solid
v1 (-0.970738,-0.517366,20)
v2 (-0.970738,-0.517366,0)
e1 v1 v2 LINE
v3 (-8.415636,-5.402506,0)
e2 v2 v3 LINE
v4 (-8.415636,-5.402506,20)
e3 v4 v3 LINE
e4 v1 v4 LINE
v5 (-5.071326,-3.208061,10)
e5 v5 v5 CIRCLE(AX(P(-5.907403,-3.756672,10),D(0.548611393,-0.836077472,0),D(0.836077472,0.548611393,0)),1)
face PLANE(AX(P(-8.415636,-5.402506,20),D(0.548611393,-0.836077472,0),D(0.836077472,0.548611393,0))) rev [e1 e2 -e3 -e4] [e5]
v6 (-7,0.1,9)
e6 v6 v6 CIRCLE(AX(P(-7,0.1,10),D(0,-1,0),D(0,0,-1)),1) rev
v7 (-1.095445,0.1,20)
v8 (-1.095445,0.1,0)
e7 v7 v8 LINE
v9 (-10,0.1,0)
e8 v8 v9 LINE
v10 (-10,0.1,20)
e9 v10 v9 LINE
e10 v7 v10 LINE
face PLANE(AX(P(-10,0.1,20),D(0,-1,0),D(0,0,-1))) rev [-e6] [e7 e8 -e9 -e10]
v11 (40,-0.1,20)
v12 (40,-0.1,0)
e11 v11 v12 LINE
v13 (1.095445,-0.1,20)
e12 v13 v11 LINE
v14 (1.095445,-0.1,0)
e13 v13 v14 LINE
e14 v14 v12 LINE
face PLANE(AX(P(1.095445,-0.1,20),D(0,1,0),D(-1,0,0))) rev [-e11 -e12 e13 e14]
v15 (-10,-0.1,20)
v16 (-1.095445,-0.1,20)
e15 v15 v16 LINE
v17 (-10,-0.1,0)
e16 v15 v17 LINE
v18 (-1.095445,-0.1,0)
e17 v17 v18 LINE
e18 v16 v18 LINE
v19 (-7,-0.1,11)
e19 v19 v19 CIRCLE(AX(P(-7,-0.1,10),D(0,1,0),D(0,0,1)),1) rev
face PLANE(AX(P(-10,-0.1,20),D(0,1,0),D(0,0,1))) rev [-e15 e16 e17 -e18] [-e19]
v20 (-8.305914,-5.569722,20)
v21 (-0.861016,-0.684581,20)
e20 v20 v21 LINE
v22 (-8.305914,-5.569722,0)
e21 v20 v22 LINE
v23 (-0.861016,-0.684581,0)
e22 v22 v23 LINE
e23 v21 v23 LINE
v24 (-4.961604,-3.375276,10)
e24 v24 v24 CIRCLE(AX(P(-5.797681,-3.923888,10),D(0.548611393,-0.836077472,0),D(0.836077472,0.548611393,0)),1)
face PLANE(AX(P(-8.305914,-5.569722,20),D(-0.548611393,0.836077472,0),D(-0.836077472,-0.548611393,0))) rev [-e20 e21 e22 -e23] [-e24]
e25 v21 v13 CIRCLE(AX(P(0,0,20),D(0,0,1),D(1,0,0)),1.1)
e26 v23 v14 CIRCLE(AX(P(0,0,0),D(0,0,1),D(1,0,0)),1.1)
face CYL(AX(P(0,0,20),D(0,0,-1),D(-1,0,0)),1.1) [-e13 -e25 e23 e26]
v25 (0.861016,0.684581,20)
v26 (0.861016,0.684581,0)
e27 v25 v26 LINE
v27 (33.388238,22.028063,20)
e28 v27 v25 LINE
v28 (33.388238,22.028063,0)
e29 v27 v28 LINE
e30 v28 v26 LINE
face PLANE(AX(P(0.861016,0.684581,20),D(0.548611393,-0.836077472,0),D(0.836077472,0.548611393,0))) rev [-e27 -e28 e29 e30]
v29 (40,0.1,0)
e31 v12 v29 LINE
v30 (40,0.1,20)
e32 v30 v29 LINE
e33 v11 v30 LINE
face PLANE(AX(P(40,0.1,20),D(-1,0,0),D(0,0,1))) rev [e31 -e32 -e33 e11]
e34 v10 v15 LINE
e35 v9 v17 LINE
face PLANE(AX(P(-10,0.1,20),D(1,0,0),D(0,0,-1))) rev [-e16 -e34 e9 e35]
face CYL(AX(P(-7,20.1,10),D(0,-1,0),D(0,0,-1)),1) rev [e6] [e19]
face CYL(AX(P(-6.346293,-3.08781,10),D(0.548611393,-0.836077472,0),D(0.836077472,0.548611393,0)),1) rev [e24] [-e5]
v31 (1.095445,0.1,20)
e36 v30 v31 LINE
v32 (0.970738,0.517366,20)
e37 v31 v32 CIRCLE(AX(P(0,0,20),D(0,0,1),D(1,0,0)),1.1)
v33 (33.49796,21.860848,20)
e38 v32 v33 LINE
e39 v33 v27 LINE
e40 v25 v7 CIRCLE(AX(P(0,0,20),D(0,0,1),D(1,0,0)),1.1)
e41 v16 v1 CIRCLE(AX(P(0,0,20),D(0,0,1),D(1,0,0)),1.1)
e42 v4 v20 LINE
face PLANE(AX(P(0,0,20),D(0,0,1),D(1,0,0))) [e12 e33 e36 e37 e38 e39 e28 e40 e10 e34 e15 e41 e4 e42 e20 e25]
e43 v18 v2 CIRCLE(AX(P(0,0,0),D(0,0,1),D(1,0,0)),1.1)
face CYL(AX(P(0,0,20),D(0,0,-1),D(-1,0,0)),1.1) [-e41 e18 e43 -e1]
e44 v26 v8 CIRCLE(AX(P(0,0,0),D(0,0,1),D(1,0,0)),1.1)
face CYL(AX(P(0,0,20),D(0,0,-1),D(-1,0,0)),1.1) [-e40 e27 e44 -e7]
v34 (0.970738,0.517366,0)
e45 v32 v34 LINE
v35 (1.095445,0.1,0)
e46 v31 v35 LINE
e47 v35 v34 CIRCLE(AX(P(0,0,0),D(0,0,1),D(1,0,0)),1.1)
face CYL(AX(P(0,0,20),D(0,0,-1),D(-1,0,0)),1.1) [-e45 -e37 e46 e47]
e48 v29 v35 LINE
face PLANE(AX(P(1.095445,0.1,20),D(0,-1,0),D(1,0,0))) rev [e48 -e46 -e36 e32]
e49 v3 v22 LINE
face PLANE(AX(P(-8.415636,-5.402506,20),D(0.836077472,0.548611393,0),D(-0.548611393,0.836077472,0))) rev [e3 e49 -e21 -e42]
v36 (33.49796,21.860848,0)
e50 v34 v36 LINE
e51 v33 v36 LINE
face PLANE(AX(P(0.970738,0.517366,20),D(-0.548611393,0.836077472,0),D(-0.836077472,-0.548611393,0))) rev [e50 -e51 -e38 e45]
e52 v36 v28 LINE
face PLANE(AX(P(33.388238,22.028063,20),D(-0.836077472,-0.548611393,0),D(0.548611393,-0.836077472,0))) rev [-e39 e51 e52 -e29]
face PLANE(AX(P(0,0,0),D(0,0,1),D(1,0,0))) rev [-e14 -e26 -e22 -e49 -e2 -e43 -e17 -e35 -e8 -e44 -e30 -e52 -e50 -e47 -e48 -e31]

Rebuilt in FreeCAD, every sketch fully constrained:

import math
import FreeCAD as App
import Part
import Sketcher
from FreeCAD import Vector
Q = App.Units.Quantity

doc = App.newDocument("Part")
body = doc.addObject("PartDesign::Body", "Body")

# Sketch on XY plane
sketch1 = body.newObject("Sketcher::SketchObject", "Sketch")
sketch1.AttachmentSupport = (doc.getObject("XY_Plane"), [""])
sketch1.MapMode = "FlatFace"
sketch1.addGeometry([
    Part.LineSegment(Vector(40, 0.1, 0), Vector(1.1, 0.1, 0)),  # 0
    Part.ArcOfCircle(Part.Circle(Vector(0, 0, 0), Vector(0, 0, 1), 1.1), math.radians(5), math.radians(28)),  # 1
    Part.LineSegment(Vector(0.97, 0.52, 0), Vector(33.5, 21.86, 0)),  # 2
    Part.LineSegment(Vector(33.5, 21.86, 0), Vector(33.39, 22.03, 0)),  # 3
    Part.LineSegment(Vector(33.39, 22.03, 0), Vector(0.86, 0.68, 0)),  # 4
    Part.ArcOfCircle(Part.Circle(Vector(0, 0, 0), Vector(0, 0, 1), 1.1), math.radians(38), math.radians(175)),  # 5
    Part.LineSegment(Vector(-1.1, 0.1, 0), Vector(-10, 0.1, 0)),  # 6
    Part.LineSegment(Vector(-10, 0.1, 0), Vector(-10, -0.1, 0)),  # 7
    Part.LineSegment(Vector(-10, -0.1, 0), Vector(-1.1, -0.1, 0)),  # 8
    Part.ArcOfCircle(Part.Circle(Vector(0, 0, 0), Vector(0, 0, 1), 1.1), math.radians(-175), math.radians(-152)),  # 9
    Part.LineSegment(Vector(-0.97, -0.52, 0), Vector(-8.42, -5.4, 0)),  # 10
    Part.LineSegment(Vector(-8.42, -5.4, 0), Vector(-8.31, -5.57, 0)),  # 11
    Part.LineSegment(Vector(-8.31, -5.57, 0), Vector(-0.86, -0.68, 0)),  # 12
    Part.ArcOfCircle(Part.Circle(Vector(0, 0, 0), Vector(0, 0, 1), 1.1), math.radians(-142), math.radians(-5)),  # 13
    Part.LineSegment(Vector(1.1, -0.1, 0), Vector(40, -0.1, 0)),  # 14
    Part.LineSegment(Vector(40, -0.1, 0), Vector(40, 0.1, 0)),  # 15
], False)
sketch1.addConstraint([
    Sketcher.Constraint("Coincident", 0, 2, 1, 1),
    Sketcher.Constraint("Coincident", 1, 2, 2, 1),
    Sketcher.Constraint("Coincident", 2, 2, 3, 1),
    Sketcher.Constraint("Coincident", 3, 2, 4, 1),
    Sketcher.Constraint("Coincident", 4, 2, 5, 1),
    Sketcher.Constraint("Coincident", 5, 2, 6, 1),
    Sketcher.Constraint("Coincident", 6, 2, 7, 1),
    Sketcher.Constraint("Coincident", 7, 2, 8, 1),
    Sketcher.Constraint("Coincident", 8, 2, 9, 1),
    Sketcher.Constraint("Coincident", 9, 2, 10, 1),
    Sketcher.Constraint("Coincident", 10, 2, 11, 1),
    Sketcher.Constraint("Coincident", 11, 2, 12, 1),
    Sketcher.Constraint("Coincident", 12, 2, 13, 1),
    Sketcher.Constraint("Coincident", 13, 2, 14, 1),
    Sketcher.Constraint("Coincident", 14, 2, 15, 1),
    Sketcher.Constraint("Coincident", 15, 2, 0, 1),
    Sketcher.Constraint("Horizontal", 0),
    Sketcher.Constraint("Horizontal", 6),
    Sketcher.Constraint("Vertical", 7),
    Sketcher.Constraint("Horizontal", 8),
    Sketcher.Constraint("Horizontal", 14),
    Sketcher.Constraint("Vertical", 15),
    Sketcher.Constraint("Coincident", 1, 3, -1, 1),
    Sketcher.Constraint("Coincident", 5, 3, -1, 1),
    Sketcher.Constraint("Coincident", 9, 3, -1, 1),
    Sketcher.Constraint("Coincident", 13, 3, -1, 1),
    Sketcher.Constraint("Equal", 1, 5),
    Sketcher.Constraint("Equal", 5, 9),
    Sketcher.Constraint("Equal", 9, 13),
    Sketcher.Constraint("Perpendicular", 2, 3),
    Sketcher.Constraint("Perpendicular", 3, 4),
    Sketcher.Constraint("Parallel", 4, 10),
    Sketcher.Constraint("Perpendicular", 10, 11),
    Sketcher.Constraint("Perpendicular", 11, 12),
    Sketcher.Constraint("Horizontal", 0, 2, 5, 2),
    Sketcher.Constraint("Horizontal", 8, 2, 13, 2),
    Sketcher.Constraint("Vertical", 5, 2, 8, 2),
    Sketcher.Constraint("Equal", 2, 4),
    Sketcher.Constraint("Equal", 3, 11),
    Sketcher.Constraint("Equal", 10, 12),
    Sketcher.Constraint("Radius", 1, Q("1.1 mm")),
    Sketcher.Constraint("DistanceY", 7, 2, 7, 1, Q("0.2 mm")),
    Sketcher.Constraint("DistanceX", 6, 2, -1, 1, Q("10 mm")),
    Sketcher.Constraint("DistanceX", -1, 1, 14, 2, Q("40 mm")),
    Sketcher.Constraint("Distance", 3, Q("0.2 mm")),
    Sketcher.Constraint("DistanceX", 1, 2, 3, 2, Q("32.4175 mm")),
    Sketcher.Constraint("DistanceX", -1, 1, 1, 2, Q("0.970738 mm")),
    Sketcher.Constraint("DistanceY", 11, 2, -1, 1, Q("5.569722 mm")),
])
pad1 = body.newObject("PartDesign::Pad", "Pad")
pad1.Profile = sketch1
pad1.Length = 20

# Sketch on XZ plane
sketch2 = body.newObject("Sketcher::SketchObject", "Sketch001")
sketch2.AttachmentSupport = (doc.getObject("XZ_Plane"), [""])
sketch2.MapMode = "FlatFace"
sketch2.AttachmentOffset = App.Placement(Vector(0, 0, -0.1), App.Rotation())
sketch2.addGeometry(Part.Circle(Vector(-7, 10, 0), Vector(0, 0, 1), 1), False)
sketch2.addConstraint([
    Sketcher.Constraint("Diameter", 0, Q("2 mm")),
    Sketcher.Constraint("DistanceX", 0, 3, -1, 1, Q("7 mm")),
    Sketcher.Constraint("DistanceY", -1, 1, 0, 3, Q("10 mm")),
])
pocket1 = body.newObject("PartDesign::Pocket", "Pocket")
pocket1.Profile = sketch2
pocket1.Type = "TwoLengths"
pocket1.Length = 20
pocket1.Length2 = 1

# Sketch on an angled plane
sketch3 = body.newObject("Sketcher::SketchObject", "Sketch002")
sketch3.Placement = App.Placement(Vector(0.054861, -0.083608, 0), App.Rotation(Vector(0.836077472, 0.548611393, 0), Vector(0, 0, 1), Vector(0.548611393, -0.836077472, 0), "ZXY"))
sketch3.addGeometry(Part.Circle(Vector(-7, 10, 0), Vector(0, 0, 1), 1), False)
sketch3.addConstraint([
    Sketcher.Constraint("Diameter", 0, Q("2 mm")),
    Sketcher.Constraint("DistanceX", 0, 3, -1, 1, Q("7 mm")),
    Sketcher.Constraint("DistanceY", -1, 1, 0, 3, Q("10 mm")),
])
pocket2 = body.newObject("PartDesign::Pocket", "Pocket001")
pocket2.Profile = sketch3
pocket2.Length = 1

doc.recompute()
